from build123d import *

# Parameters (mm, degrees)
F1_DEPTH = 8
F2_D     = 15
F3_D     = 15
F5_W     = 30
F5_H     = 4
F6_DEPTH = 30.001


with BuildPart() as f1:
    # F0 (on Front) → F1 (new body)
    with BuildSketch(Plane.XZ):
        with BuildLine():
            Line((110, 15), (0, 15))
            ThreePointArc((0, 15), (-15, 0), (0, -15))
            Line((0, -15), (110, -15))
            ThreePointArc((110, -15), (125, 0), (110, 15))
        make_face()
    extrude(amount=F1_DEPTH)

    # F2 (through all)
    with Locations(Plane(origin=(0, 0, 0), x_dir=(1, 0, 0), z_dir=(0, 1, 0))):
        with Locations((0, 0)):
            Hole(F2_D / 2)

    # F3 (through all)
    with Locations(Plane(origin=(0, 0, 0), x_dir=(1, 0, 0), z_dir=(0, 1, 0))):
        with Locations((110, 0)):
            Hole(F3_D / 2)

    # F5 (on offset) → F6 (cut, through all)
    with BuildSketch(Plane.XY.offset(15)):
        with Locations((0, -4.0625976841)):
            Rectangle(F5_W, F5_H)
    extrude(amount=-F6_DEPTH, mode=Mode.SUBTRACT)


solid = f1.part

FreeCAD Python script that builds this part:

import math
import FreeCAD as App
import Part
import Sketcher
from FreeCAD import Vector
Q = App.Units.Quantity


def add_polygon(sketch, points):
    """Adds a closed chain of lines whose ends are joined by coincident constraints."""
    first, n = sketch.GeometryCount, len(points)
    for a, b in zip(points, points[1:] + points[:1]):
        sketch.addGeometry(Part.LineSegment(App.Vector(*a, 0), App.Vector(*b, 0)), False)
    for i in range(n):
        sketch.addConstraint(Sketcher.Constraint("Coincident", first + i, 2, first + (i + 1) % n, 1))

doc = App.newDocument("Part")
body = doc.addObject("PartDesign::Body", "Body")

sketch1 = doc.addObject("Sketcher::SketchObject", "Sketch")
body.addObject(sketch1)
sketch1.AttachmentSupport = (doc.XZ_Plane, [""])
sketch1.MapMode = "FlatFace"
sketch1.addGeometry(Part.LineSegment(Vector(110, 15, 0), Vector(0, 15, 0)), False)
sketch1.addGeometry(Part.ArcOfCircle(Part.Circle(Vector(0, 0, 0), Vector(0, 0, 1), 15), math.radians(90), math.radians(270)), False)
sketch1.addGeometry(Part.LineSegment(Vector(0, -15, 0), Vector(110, -15, 0)), False)
sketch1.addGeometry(Part.ArcOfCircle(Part.Circle(Vector(110, 0, 0), Vector(0, 0, 1), 15), math.radians(-90), math.radians(90)), False)
sketch1.addConstraint(Sketcher.Constraint("Tangent", 0, 2, 1, 1))
sketch1.addConstraint(Sketcher.Constraint("Tangent", 1, 2, 2, 1))
sketch1.addConstraint(Sketcher.Constraint("Tangent", 2, 2, 3, 1))
sketch1.addConstraint(Sketcher.Constraint("Tangent", 3, 2, 0, 1))
sketch1.addConstraint(Sketcher.Constraint("Horizontal", 0))
sketch1.addConstraint(Sketcher.Constraint("Horizontal", 2))
sketch1.addConstraint(Sketcher.Constraint("Coincident", 1, 3, -1, 1))
sketch1.addConstraint(Sketcher.Constraint("Radius", 1, Q("15 mm")))
sketch1.addConstraint(Sketcher.Constraint("DistanceX", 0, 2, 0, 1, Q("110 mm")))
pad1 = doc.addObject("PartDesign::Pad", "Pad")
body.addObject(pad1)
pad1.Profile = sketch1
pad1.Length = 8

sketch2 = doc.addObject("Sketcher::SketchObject", "Sketch001")
body.addObject(sketch2)
sketch2.AttachmentSupport = (doc.XZ_Plane, [""])
sketch2.MapMode = "FlatFace"
sketch2.addGeometry(Part.Circle(Vector(0, 0, 0), Vector(0, 0, 1), 8), False)
sketch2.addConstraint(Sketcher.Constraint("Coincident", 0, 3, -1, 1))
sketch2.addConstraint(Sketcher.Constraint("Diameter", 0, Q("15 mm")))
doc.recompute()
hole = doc.addObject("PartDesign::Hole", "Hole")
body.addObject(hole)
hole.Profile = sketch2
hole.ThreadType = "None"
hole.Diameter = 15
hole.DepthType = "ThroughAll"
hole.Reversed = True

sketch3 = doc.addObject("Sketcher::SketchObject", "Sketch002")
body.addObject(sketch3)
sketch3.AttachmentSupport = (doc.XZ_Plane, [""])
sketch3.MapMode = "FlatFace"
sketch3.addGeometry(Part.Circle(Vector(110, 0, 0), Vector(0, 0, 1), 8), False)
sketch3.addConstraint(Sketcher.Constraint("PointOnObject", 0, 3, -1))
sketch3.addConstraint(Sketcher.Constraint("Diameter", 0, Q("15 mm")))
sketch3.addConstraint(Sketcher.Constraint("DistanceX", -1, 1, 0, 3, Q("110 mm")))
doc.recompute()
hole2 = doc.addObject("PartDesign::Hole", "Hole001")
body.addObject(hole2)
hole2.Profile = sketch3
hole2.ThreadType = "None"
hole2.Diameter = 15
hole2.DepthType = "ThroughAll"
hole2.Reversed = True

sketch4 = doc.addObject("Sketcher::SketchObject", "Sketch003")
body.addObject(sketch4)
sketch4.AttachmentSupport = (doc.XY_Plane, [""])
sketch4.MapMode = "FlatFace"
sketch4.AttachmentOffset = App.Placement(Vector(0, 0, 15), App.Rotation())
add_polygon(sketch4, [(-15, -2.1), (-15, -6.1), (15, -6.1), (15, -2.1)])
sketch4.addConstraint(Sketcher.Constraint("Vertical", 0))
sketch4.addConstraint(Sketcher.Constraint("Horizontal", 1))
sketch4.addConstraint(Sketcher.Constraint("Vertical", 2))
sketch4.addConstraint(Sketcher.Constraint("Horizontal", 3))
sketch4.addConstraint(Sketcher.Constraint("DistanceX", 1, 1, 1, 2, Q("30 mm")))
sketch4.addConstraint(Sketcher.Constraint("DistanceY", 0, 2, 0, 1, Q("4 mm")))
sketch4.addConstraint(Sketcher.Constraint("DistanceX", 0, 2, -1, 1, Q("15 mm")))
sketch4.addConstraint(Sketcher.Constraint("DistanceY", 0, 2, -1, 1, Q("6.062598 mm")))
pocket1 = doc.addObject("PartDesign::Pocket", "Pocket")
body.addObject(pocket1)
pocket1.Profile = sketch4
pocket1.Type = "ThroughAll"

doc.recompute()
